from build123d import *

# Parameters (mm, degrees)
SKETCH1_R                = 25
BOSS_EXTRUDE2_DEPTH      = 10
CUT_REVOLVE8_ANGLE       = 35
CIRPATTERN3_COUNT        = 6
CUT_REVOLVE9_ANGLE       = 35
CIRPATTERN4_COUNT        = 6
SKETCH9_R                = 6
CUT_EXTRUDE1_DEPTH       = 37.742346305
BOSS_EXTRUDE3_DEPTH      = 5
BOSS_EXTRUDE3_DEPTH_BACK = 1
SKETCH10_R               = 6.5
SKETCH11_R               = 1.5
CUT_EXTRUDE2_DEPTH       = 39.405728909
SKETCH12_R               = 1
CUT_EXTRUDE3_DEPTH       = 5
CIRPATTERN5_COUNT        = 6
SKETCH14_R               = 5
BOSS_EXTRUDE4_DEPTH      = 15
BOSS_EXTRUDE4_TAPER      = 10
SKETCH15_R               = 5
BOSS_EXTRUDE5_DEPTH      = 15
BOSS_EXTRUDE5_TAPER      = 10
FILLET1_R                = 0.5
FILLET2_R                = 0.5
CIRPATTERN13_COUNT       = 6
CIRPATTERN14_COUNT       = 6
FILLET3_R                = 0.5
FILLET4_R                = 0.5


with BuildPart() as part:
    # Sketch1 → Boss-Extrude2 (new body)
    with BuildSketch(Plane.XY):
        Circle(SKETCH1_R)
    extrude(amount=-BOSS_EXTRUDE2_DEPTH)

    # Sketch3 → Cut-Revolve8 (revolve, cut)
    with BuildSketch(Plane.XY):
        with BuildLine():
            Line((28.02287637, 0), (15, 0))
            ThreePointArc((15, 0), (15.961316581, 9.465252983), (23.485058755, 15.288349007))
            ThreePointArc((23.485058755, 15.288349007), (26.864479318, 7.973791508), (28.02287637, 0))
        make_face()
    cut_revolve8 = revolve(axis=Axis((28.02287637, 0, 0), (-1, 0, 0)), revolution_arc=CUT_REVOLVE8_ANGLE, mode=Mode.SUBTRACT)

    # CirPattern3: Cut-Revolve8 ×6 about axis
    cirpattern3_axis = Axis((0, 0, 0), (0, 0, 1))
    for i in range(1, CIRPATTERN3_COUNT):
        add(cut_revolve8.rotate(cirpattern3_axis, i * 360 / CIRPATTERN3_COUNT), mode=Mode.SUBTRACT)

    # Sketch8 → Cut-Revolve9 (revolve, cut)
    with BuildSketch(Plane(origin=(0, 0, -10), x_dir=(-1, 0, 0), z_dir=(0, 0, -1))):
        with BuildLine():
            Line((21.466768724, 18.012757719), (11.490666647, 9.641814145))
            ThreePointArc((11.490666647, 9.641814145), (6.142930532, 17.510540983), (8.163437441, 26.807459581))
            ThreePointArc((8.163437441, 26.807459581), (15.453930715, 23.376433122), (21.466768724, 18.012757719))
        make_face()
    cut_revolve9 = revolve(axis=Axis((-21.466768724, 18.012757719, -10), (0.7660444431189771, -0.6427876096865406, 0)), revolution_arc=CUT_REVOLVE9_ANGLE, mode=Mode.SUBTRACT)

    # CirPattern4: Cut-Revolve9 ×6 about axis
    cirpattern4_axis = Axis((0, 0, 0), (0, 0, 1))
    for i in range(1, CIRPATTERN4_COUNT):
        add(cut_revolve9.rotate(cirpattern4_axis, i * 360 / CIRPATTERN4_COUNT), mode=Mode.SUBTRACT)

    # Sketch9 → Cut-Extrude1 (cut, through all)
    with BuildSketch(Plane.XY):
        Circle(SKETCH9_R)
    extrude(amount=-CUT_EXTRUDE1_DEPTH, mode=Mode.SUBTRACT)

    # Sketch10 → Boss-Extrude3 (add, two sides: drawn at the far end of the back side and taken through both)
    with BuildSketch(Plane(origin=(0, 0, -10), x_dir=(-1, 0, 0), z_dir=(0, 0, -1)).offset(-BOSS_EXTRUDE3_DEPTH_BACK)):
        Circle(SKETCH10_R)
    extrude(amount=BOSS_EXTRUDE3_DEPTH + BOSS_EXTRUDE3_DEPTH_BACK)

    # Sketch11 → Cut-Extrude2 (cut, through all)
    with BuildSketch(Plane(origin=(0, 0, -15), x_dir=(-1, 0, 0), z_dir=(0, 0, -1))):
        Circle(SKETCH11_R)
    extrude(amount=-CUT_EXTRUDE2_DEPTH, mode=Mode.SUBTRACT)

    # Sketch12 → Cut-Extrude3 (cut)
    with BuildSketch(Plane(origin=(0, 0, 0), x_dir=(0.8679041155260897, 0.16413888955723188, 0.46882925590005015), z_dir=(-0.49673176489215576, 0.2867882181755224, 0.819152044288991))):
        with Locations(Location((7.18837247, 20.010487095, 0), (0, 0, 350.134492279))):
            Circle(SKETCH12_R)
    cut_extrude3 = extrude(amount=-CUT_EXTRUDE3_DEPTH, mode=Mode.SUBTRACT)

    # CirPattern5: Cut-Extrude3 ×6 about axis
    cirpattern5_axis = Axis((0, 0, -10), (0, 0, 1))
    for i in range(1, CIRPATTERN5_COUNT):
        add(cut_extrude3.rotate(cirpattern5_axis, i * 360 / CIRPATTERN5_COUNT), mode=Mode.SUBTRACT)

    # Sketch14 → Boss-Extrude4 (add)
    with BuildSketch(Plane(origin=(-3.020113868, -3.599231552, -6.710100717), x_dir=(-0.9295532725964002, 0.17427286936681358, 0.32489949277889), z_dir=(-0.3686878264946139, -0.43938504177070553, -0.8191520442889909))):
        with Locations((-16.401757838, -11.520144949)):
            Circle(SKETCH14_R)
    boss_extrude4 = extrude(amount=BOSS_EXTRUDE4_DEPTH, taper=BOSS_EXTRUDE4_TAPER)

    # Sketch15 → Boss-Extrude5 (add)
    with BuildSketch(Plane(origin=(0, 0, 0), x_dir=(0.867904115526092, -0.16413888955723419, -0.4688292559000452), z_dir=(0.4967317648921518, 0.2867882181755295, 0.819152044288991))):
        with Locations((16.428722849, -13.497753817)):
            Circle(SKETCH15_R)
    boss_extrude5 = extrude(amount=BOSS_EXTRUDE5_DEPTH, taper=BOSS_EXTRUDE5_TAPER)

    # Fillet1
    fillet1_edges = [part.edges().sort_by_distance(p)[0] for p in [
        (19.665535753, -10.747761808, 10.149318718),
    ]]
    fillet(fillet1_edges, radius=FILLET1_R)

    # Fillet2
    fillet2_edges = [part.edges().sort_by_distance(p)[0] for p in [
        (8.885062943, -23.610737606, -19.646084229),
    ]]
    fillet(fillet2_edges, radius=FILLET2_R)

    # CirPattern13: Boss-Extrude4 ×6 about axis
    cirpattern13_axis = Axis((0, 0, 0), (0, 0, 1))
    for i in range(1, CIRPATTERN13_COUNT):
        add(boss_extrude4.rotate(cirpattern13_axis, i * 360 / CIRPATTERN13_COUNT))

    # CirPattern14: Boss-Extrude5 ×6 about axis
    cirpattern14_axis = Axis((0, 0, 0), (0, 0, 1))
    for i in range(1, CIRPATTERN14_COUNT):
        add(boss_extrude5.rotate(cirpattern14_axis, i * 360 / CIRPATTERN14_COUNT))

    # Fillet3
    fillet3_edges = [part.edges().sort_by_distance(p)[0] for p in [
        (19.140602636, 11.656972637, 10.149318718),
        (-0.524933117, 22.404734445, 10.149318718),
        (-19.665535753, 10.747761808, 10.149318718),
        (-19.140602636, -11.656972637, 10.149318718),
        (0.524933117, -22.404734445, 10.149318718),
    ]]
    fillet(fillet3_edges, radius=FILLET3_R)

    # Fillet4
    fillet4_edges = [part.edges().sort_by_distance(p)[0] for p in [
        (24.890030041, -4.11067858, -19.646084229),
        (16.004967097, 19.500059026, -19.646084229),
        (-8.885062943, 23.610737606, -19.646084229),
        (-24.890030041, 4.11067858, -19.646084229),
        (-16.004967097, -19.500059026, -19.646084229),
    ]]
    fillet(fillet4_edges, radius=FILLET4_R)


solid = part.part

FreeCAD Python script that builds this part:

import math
import FreeCAD as App
import Part
import Sketcher
from FreeCAD import Vector
Q = App.Units.Quantity


def edges_at(feature, points):
    """Names of the edges that pass closest to the given points."""
    edges = feature.Shape.Edges
    near = lambda p: min(range(len(edges)), key=lambda i: edges[i].distToShape(Part.Vertex(*p))[0])
    return sorted({f"Edge{near(p) + 1}" for p in points})

doc = App.newDocument("Part")
body = doc.addObject("PartDesign::Body", "Body")

# Sketch on XY plane
sketch1 = body.newObject("Sketcher::SketchObject", "Sketch")
sketch1.AttachmentSupport = (doc.getObject("XY_Plane"), [""])
sketch1.MapMode = "FlatFace"
sketch1.addGeometry(Part.Circle(Vector(0, 0, 0), Vector(0, 0, 1), 25), False)
sketch1.addConstraint([
    Sketcher.Constraint("Coincident", 0, 3, -1, 1),
    Sketcher.Constraint("Diameter", 0, Q("50 mm")),
])
pad1 = body.newObject("PartDesign::Pad", "Pad")
pad1.Profile = sketch1
pad1.Length = 10
pad1.Reversed = True

# Sketch on XY plane
sketch2 = body.newObject("Sketcher::SketchObject", "Sketch001")
sketch2.AttachmentSupport = (doc.getObject("XY_Plane"), [""])
sketch2.MapMode = "FlatFace"
sketch2.addGeometry([
    Part.LineSegment(Vector(15, 0, 0), Vector(28, 0, 0)),
    Part.ArcOfCircle(Part.Circle(Vector(0, 0, 0), Vector(0, 0, 1), 28), math.radians(0), math.radians(33)),
    Part.ArcOfCircle(Part.Circle(Vector(27, 4, 0), Vector(0, 0, 1), 12), math.radians(105), math.radians(197)),
], False)
sketch2.addConstraint([
    Sketcher.Constraint("Coincident", 0, 2, 1, 1),
    Sketcher.Constraint("Coincident", 1, 2, 2, 1),
    Sketcher.Constraint("Coincident", 2, 2, 0, 1),
    Sketcher.Constraint("Horizontal", 0),
    Sketcher.Constraint("Coincident", 1, 3, -1, 1),
    Sketcher.Constraint("PointOnObject", 0, 2, -1),
    Sketcher.Constraint("DistanceX", -1, 1, 2, 2, Q("15 mm")),
    Sketcher.Constraint("Radius", 1, Q("28.022876 mm")),
    Sketcher.Constraint("Radius", 2, Q("12.060034 mm")),
    Sketcher.Constraint("DistanceX", -1, 1, 2, 3, Q("26.506162 mm")),
])
groove = body.newObject("PartDesign::Groove", "Groove")
groove.Profile = sketch2
groove.ReferenceAxis = (sketch2, ["H_Axis"])
groove.Angle = 35
groove.Reversed = True
doc.recompute()

polarpattern = body.newObject("PartDesign::PolarPattern", "PolarPattern")
polarpattern.Originals = [groove]
polarpattern.Axis = (doc.getObject("Z_Axis"), [""])
polarpattern.Angle = 360
polarpattern.Occurrences = 6
body.Tip = polarpattern

# Sketch on XY plane
sketch3 = body.newObject("Sketcher::SketchObject", "Sketch002")
sketch3.AttachmentSupport = (doc.getObject("XY_Plane"), [""])
sketch3.MapMode = "FlatFace"
sketch3.AttachmentOffset = App.Placement(Vector(0, 0, -10), App.Rotation())
sketch3.addGeometry([
    Part.LineSegment(Vector(-11, 10, 0), Vector(-21, 18, 0)),
    Part.ArcOfCircle(Part.Circle(Vector(0, 0, 0), Vector(0, 0, 1), 28), math.radians(107), math.radians(140)),
    Part.ArcOfCircle(Part.Circle(Vector(-18, 20, 0), Vector(0, 0, 1), 12), math.radians(-57), math.radians(35)),
], False)
sketch3.addGeometry(Part.LineSegment(Vector(-21, 18, 0), Vector(0, 0, 0)), True)  # axis
sketch3.addConstraint([
    Sketcher.Constraint("Coincident", 0, 2, 1, 2),
    Sketcher.Constraint("Coincident", 1, 1, 2, 2),
    Sketcher.Constraint("Coincident", 2, 1, 0, 1),
    Sketcher.Constraint("Coincident", 1, 3, -1, 1),
    Sketcher.Constraint("Coincident", 3, 2, -1, 1),
    Sketcher.Constraint("Coincident", 3, 1, 0, 2),
    Sketcher.Constraint("Parallel", 0, 3),
    Sketcher.Constraint("Angle", 0, Q("140 deg")),
    Sketcher.Constraint("Radius", 1, Q("28.022876 mm")),
    Sketcher.Constraint("Radius", 2, Q("12.060034 mm")),
    Sketcher.Constraint("DistanceY", 0, 2, 1, 1, Q("8.794702 mm")),
    Sketcher.Constraint("DistanceX", 2, 3, 2, 1, Q("6.491938 mm")),
])
groove2 = body.newObject("PartDesign::Groove", "Groove001")
groove2.Profile = sketch3
groove2.ReferenceAxis = (sketch3, ["Axis0"])
groove2.Angle = 35
doc.recompute()

polarpattern2 = body.newObject("PartDesign::PolarPattern", "PolarPattern001")
polarpattern2.Originals = [groove2]
polarpattern2.Axis = (doc.getObject("Z_Axis"), [""])
polarpattern2.Angle = 360
polarpattern2.Occurrences = 6
body.Tip = polarpattern2

# Sketch on XY plane
sketch4 = body.newObject("Sketcher::SketchObject", "Sketch003")
sketch4.AttachmentSupport = (doc.getObject("XY_Plane"), [""])
sketch4.MapMode = "FlatFace"
sketch4.addGeometry(Part.Circle(Vector(0, 0, 0), Vector(0, 0, 1), 6), False)
sketch4.addConstraint([
    Sketcher.Constraint("Coincident", 0, 3, -1, 1),
    Sketcher.Constraint("Diameter", 0, Q("12 mm")),
])
pocket1 = body.newObject("PartDesign::Pocket", "Pocket")
pocket1.Profile = sketch4
pocket1.Type = "ThroughAll"

# Sketch on XY plane
sketch5 = body.newObject("Sketcher::SketchObject", "Sketch004")
sketch5.AttachmentSupport = (doc.getObject("XY_Plane"), [""])
sketch5.MapMode = "FlatFace"
sketch5.AttachmentOffset = App.Placement(Vector(0, 0, -10), App.Rotation())
sketch5.addGeometry(Part.Circle(Vector(0, 0, 0), Vector(0, 0, 1), 6), False)
sketch5.addConstraint([
    Sketcher.Constraint("Coincident", 0, 3, -1, 1),
    Sketcher.Constraint("Diameter", 0, Q("13 mm")),
])
pad2 = body.newObject("PartDesign::Pad", "Pad001")
pad2.Profile = sketch5
pad2.Type = "TwoLengths"
pad2.Length = 5
pad2.Length2 = 1
pad2.Reversed = True

# Sketch on XY plane
sketch6 = body.newObject("Sketcher::SketchObject", "Sketch005")
sketch6.AttachmentSupport = (doc.getObject("XY_Plane"), [""])
sketch6.MapMode = "FlatFace"
sketch6.AttachmentOffset = App.Placement(Vector(0, 0, -15), App.Rotation())
sketch6.addGeometry(Part.Circle(Vector(0, 0, 0), Vector(0, 0, 1), 1.5), False)
sketch6.addConstraint([
    Sketcher.Constraint("Coincident", 0, 3, -1, 1),
    Sketcher.Constraint("Diameter", 0, Q("3 mm")),
])
pocket2 = body.newObject("PartDesign::Pocket", "Pocket001")
pocket2.Profile = sketch6
pocket2.Type = "ThroughAll"
pocket2.Reversed = True

# Sketch on an angled plane
sketch7 = body.newObject("Sketcher::SketchObject", "Sketch006")
sketch7.Placement = App.Placement(Vector(0, 0, 0), App.Rotation(Vector(0.867904116, 0.16413889, 0.468829256), Vector(0, 0.943827814, -0.330437675), Vector(-0.496731765, 0.286788218, 0.819152044), "ZXY"))
sketch7.addGeometry(Part.Circle(Vector(7.2, 20, 0), Vector(0, 0, 1), 1), False)
sketch7.addConstraint([
    Sketcher.Constraint("Diameter", 0, Q("2 mm")),
    Sketcher.Constraint("DistanceX", -1, 1, 0, 3, Q("7.188372 mm")),
    Sketcher.Constraint("DistanceY", -1, 1, 0, 3, Q("20.010487 mm")),
])
pocket3 = body.newObject("PartDesign::Pocket", "Pocket002")
pocket3.Profile = sketch7
pocket3.Length = 5
doc.recompute()

polarpattern3 = body.newObject("PartDesign::PolarPattern", "PolarPattern002")
polarpattern3.Originals = [pocket3]
polarpattern3.Axis = (doc.getObject("Z_Axis"), [""])
polarpattern3.Angle = 360
polarpattern3.Occurrences = 6
body.Tip = polarpattern3

# Sketch on an angled plane
sketch8 = body.newObject("Sketcher::SketchObject", "Sketch007")
sketch8.Placement = App.Placement(Vector(-3.020114, -3.599232, -6.710101), App.Rotation(Vector(-0.929553273, 0.174272869, 0.324899493), Vector(-0.000000001, 0.881231951, -0.472684089), Vector(-0.368687826, -0.439385042, -0.819152044), "ZXY"))
sketch8.addGeometry(Part.Circle(Vector(-16, -12, 0), Vector(0, 0, 1), 5), False)
sketch8.addConstraint([
    Sketcher.Constraint("Diameter", 0, Q("10 mm")),
    Sketcher.Constraint("DistanceX", 0, 3, -1, 1, Q("16.401758 mm")),
    Sketcher.Constraint("DistanceY", 0, 3, -1, 1, Q("11.520145 mm")),
])
pad3 = body.newObject("PartDesign::Pad", "Pad002")
pad3.Profile = sketch8
pad3.Length = 15
pad3.TaperAngle = -10

# Sketch on an angled plane
sketch9 = body.newObject("Sketcher::SketchObject", "Sketch008")
sketch9.Placement = App.Placement(Vector(0, 0, 0), App.Rotation(Vector(0.867904116, -0.16413889, -0.468829256), Vector(0, 0.943827814, -0.330437675), Vector(0.496731765, 0.286788218, 0.819152044), "ZXY"))
sketch9.addGeometry(Part.Circle(Vector(16, -13, 0), Vector(0, 0, 1), 5), False)
sketch9.addConstraint([
    Sketcher.Constraint("Diameter", 0, Q("10 mm")),
    Sketcher.Constraint("DistanceX", -1, 1, 0, 3, Q("16.428723 mm")),
    Sketcher.Constraint("DistanceY", 0, 3, -1, 1, Q("13.497754 mm")),
])
pad4 = body.newObject("PartDesign::Pad", "Pad003")
pad4.Profile = sketch9
pad4.Length = 15
pad4.TaperAngle = -10
doc.recompute()

fillet = body.newObject("PartDesign::Fillet", "Fillet")
fillet.Base = (pad4, edges_at(pad4, [(19.666, -10.748, 10.149)]))
fillet.Radius = 0.5
doc.recompute()

fillet2 = body.newObject("PartDesign::Fillet", "Fillet001")
fillet2.Base = (fillet, edges_at(fillet, [(8.885, -23.611, -19.646)]))
fillet2.Radius = 0.5
doc.recompute()

polarpattern4 = body.newObject("PartDesign::PolarPattern", "PolarPattern003")
polarpattern4.Originals = [pad3]
polarpattern4.Axis = (doc.getObject("Z_Axis"), [""])
polarpattern4.Angle = 360
polarpattern4.Occurrences = 6
body.Tip = polarpattern4
doc.recompute()

polarpattern5 = body.newObject("PartDesign::PolarPattern", "PolarPattern004")
polarpattern5.Originals = [pad4]
polarpattern5.Axis = (doc.getObject("Z_Axis"), [""])
polarpattern5.Angle = 360
polarpattern5.Occurrences = 6
body.Tip = polarpattern5
doc.recompute()

fillet3 = body.newObject("PartDesign::Fillet", "Fillet002")
fillet3.Base = (polarpattern5, edges_at(polarpattern5, [
    (19.141, 11.657, 10.149),
    (-0.525, 22.405, 10.149),
    (-19.666, 10.748, 10.149),
    (-19.141, -11.657, 10.149),
    (0.525, -22.405, 10.149),
]))
fillet3.Radius = 0.5
doc.recompute()

fillet4 = body.newObject("PartDesign::Fillet", "Fillet003")
fillet4.Base = (fillet3, edges_at(fillet3, [
    (24.89, -4.111, -19.646),
    (16.005, 19.5, -19.646),
    (-8.885, 23.611, -19.646),
    (-24.89, 4.111, -19.646),
    (-16.005, -19.5, -19.646),
]))
fillet4.Radius = 0.5

doc.recompute()
